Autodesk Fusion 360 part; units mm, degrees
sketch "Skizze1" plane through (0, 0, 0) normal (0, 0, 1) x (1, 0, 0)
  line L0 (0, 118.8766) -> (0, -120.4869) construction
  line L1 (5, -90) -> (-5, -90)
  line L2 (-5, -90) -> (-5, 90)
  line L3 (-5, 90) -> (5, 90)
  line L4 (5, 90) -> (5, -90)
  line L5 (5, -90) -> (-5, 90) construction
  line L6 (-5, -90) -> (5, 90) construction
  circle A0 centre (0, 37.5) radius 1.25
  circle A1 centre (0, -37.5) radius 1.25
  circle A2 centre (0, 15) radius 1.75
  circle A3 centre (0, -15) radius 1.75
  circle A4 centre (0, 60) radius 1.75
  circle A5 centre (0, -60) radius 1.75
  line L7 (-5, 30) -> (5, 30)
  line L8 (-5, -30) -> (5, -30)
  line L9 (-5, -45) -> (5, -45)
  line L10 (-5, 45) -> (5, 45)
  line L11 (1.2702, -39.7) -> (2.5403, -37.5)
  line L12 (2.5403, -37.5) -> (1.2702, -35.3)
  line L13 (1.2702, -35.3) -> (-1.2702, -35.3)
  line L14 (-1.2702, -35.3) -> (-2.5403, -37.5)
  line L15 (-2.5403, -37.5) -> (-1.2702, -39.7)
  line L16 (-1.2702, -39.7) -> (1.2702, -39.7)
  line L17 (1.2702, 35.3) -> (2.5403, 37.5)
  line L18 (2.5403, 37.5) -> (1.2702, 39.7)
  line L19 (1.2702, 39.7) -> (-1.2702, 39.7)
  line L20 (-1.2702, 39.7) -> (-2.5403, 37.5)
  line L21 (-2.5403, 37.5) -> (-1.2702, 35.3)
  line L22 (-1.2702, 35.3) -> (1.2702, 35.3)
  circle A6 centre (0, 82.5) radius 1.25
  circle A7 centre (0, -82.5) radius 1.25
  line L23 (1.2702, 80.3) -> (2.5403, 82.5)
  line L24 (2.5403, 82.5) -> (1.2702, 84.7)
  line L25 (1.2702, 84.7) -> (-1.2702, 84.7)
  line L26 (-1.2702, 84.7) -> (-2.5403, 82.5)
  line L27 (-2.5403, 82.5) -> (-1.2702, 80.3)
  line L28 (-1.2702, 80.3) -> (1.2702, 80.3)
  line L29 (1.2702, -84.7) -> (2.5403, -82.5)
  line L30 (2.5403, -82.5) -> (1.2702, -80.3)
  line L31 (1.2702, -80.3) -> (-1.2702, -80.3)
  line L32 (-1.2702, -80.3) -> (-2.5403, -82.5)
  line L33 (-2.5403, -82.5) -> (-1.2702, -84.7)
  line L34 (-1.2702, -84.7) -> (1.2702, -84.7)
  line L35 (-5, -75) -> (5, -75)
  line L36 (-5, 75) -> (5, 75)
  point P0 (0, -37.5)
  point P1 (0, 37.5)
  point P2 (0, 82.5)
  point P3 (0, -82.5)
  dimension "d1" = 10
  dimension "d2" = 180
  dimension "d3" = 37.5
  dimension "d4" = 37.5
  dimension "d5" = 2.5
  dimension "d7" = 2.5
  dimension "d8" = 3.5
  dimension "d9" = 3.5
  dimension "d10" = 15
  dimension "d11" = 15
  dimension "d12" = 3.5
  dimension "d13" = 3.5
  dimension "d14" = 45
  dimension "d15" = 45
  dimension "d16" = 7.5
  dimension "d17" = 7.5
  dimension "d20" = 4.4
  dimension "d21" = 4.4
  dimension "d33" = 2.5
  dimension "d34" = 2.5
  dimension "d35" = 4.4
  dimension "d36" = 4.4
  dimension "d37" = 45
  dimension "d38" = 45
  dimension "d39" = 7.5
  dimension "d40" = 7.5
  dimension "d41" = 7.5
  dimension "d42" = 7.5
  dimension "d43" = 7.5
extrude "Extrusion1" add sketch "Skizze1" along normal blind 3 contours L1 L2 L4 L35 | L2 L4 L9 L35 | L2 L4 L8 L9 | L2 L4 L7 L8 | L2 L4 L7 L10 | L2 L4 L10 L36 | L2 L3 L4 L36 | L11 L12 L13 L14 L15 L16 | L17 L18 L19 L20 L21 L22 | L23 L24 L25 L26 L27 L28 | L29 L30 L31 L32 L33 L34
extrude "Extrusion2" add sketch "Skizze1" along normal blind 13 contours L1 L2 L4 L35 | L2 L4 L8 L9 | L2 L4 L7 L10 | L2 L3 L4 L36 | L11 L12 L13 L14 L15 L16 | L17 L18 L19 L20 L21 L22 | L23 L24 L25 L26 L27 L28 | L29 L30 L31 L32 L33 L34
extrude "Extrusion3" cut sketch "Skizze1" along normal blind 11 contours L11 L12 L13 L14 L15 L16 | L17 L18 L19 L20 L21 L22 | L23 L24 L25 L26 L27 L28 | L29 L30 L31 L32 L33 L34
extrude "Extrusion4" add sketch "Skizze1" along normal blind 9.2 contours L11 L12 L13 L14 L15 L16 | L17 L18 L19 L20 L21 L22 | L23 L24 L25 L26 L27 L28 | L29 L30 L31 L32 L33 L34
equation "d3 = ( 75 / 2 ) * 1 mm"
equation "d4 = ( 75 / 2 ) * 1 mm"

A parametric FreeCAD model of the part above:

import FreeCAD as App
import Part
import Sketcher
Q = App.Units.Quantity

doc = App.newDocument("Part")
body = doc.addObject("PartDesign::Body", "Body")

# Sketch on XY plane
sketch1 = body.newObject("Sketcher::SketchObject", "Sketch")
sketch1.AttachmentSupport = (doc.getObject("XY_Plane"), [""])
sketch1.MapMode = "FlatFace"
sketch1.addGeometry(Part.LineSegment(App.Vector(-5, -90, 0), App.Vector(5, -90, 0)), False)
sketch1.addGeometry(Part.LineSegment(App.Vector(5, -90, 0), App.Vector(5, 90, 0)), False)
sketch1.addGeometry(Part.LineSegment(App.Vector(5, 90, 0), App.Vector(-5, 90, 0)), False)
sketch1.addGeometry(Part.LineSegment(App.Vector(-5, 90, 0), App.Vector(-5, -90, 0)), False)
sketch1.addGeometry(Part.Circle(App.Vector(0, -60, 0), App.Vector(0, 0, 1), 1.8), False)
sketch1.addGeometry(Part.Circle(App.Vector(0, -82.5, 0), App.Vector(0, 0, 1), 1.2), False)
sketch1.addGeometry(Part.Circle(App.Vector(0, -37.5, 0), App.Vector(0, 0, 1), 1.2), False)
sketch1.addGeometry(Part.Circle(App.Vector(0, 15, 0), App.Vector(0, 0, 1), 1.8), False)
sketch1.addGeometry(Part.Circle(App.Vector(0, -15, 0), App.Vector(0, 0, 1), 1.8), False)
sketch1.addGeometry(Part.Circle(App.Vector(0, 37.5, 0), App.Vector(0, 0, 1), 1.2), False)
sketch1.addGeometry(Part.Circle(App.Vector(0, 60, 0), App.Vector(0, 0, 1), 1.8), False)
sketch1.addGeometry(Part.Circle(App.Vector(0, 82.5, 0), App.Vector(0, 0, 1), 1.2), False)
sketch1.addConstraint(Sketcher.Constraint("Coincident", 0, 2, 1, 1))
sketch1.addConstraint(Sketcher.Constraint("Coincident", 1, 2, 2, 1))
sketch1.addConstraint(Sketcher.Constraint("Coincident", 2, 2, 3, 1))
sketch1.addConstraint(Sketcher.Constraint("Coincident", 3, 2, 0, 1))
sketch1.addConstraint(Sketcher.Constraint("Horizontal", 0))
sketch1.addConstraint(Sketcher.Constraint("Vertical", 1))
sketch1.addConstraint(Sketcher.Constraint("Horizontal", 2))
sketch1.addConstraint(Sketcher.Constraint("Vertical", 3))
sketch1.addConstraint(Sketcher.Constraint("Equal", 5, 6))
sketch1.addConstraint(Sketcher.Constraint("Equal", 4, 7))
sketch1.addConstraint(Sketcher.Constraint("Equal", 7, 8))
sketch1.addConstraint(Sketcher.Constraint("Equal", 6, 9))
sketch1.addConstraint(Sketcher.Constraint("Equal", 8, 10))
sketch1.addConstraint(Sketcher.Constraint("Equal", 9, 11))
sketch1.addConstraint(Sketcher.Constraint("Symmetric", 7, 3, 8, 3, -1, 1))
sketch1.addConstraint(Sketcher.Constraint("Symmetric", 6, 3, 9, 3, -1, 1))
sketch1.addConstraint(Sketcher.Constraint("Symmetric", 4, 3, 10, 3, -1, 1))
sketch1.addConstraint(Sketcher.Constraint("Symmetric", 5, 3, 11, 3, -1, 1))
sketch1.addConstraint(Sketcher.Constraint("Symmetric", 0, 2, 2, 2, -1, 1))
sketch1.addConstraint(Sketcher.Constraint("PointOnObject", 4, 3, -2))
sketch1.addConstraint(Sketcher.Constraint("PointOnObject", 5, 3, -2))
sketch1.addConstraint(Sketcher.Constraint("PointOnObject", 6, 3, -2))
sketch1.addConstraint(Sketcher.Constraint("PointOnObject", 7, 3, -2))
sketch1.addConstraint(Sketcher.Constraint("Diameter", 4, Q("3.5 mm")))
sketch1.addConstraint(Sketcher.Constraint("Diameter", 5, Q("2.5 mm")))
sketch1.addConstraint(Sketcher.Constraint("DistanceX", 0, 1, 0, 2, Q("10 mm")))
sketch1.addConstraint(Sketcher.Constraint("DistanceY", 1, 1, 1, 2, Q("180 mm")))
sketch1.addConstraint(Sketcher.Constraint("DistanceY", -1, 1, 7, 3, Q("15 mm")))
sketch1.addConstraint(Sketcher.Constraint("DistanceY", 5, 3, 6, 3, Q("45 mm")))
sketch1.addConstraint(Sketcher.Constraint("DistanceY", 4, 3, 8, 3, Q("45 mm")))
sketch1.addConstraint(Sketcher.Constraint("DistanceY", 6, 3, -1, 1, Q("37.5 mm")))
pad1 = body.newObject("PartDesign::Pad", "Pad")
pad1.Profile = sketch1
pad1.Length = 3

# Sketch on XY plane
sketch2 = body.newObject("Sketcher::SketchObject", "Sketch001")
sketch2.AttachmentSupport = (doc.getObject("XY_Plane"), [""])
sketch2.MapMode = "FlatFace"
sketch2.addGeometry(Part.LineSegment(App.Vector(-5, -90, 0), App.Vector(5, -90, 0)), False)
sketch2.addGeometry(Part.LineSegment(App.Vector(5, -90, 0), App.Vector(5, -75, 0)), False)
sketch2.addGeometry(Part.LineSegment(App.Vector(5, -75, 0), App.Vector(-5, -75, 0)), False)
sketch2.addGeometry(Part.LineSegment(App.Vector(-5, -75, 0), App.Vector(-5, -90, 0)), False)
sketch2.addGeometry(Part.Circle(App.Vector(0, -82.5, 0), App.Vector(0, 0, 1), 1.2), False)
sketch2.addGeometry(Part.LineSegment(App.Vector(-5, -45, 0), App.Vector(5, -45, 0)), False)
sketch2.addGeometry(Part.LineSegment(App.Vector(5, -45, 0), App.Vector(5, -30, 0)), False)
sketch2.addGeometry(Part.LineSegment(App.Vector(5, -30, 0), App.Vector(-5, -30, 0)), False)
sketch2.addGeometry(Part.LineSegment(App.Vector(-5, -30, 0), App.Vector(-5, -45, 0)), False)
sketch2.addGeometry(Part.Circle(App.Vector(0, -37.5, 0), App.Vector(0, 0, 1), 1.2), False)
sketch2.addGeometry(Part.LineSegment(App.Vector(-5, 30, 0), App.Vector(5, 30, 0)), False)
sketch2.addGeometry(Part.LineSegment(App.Vector(5, 30, 0), App.Vector(5, 45, 0)), False)
sketch2.addGeometry(Part.LineSegment(App.Vector(5, 45, 0), App.Vector(-5, 45, 0)), False)
sketch2.addGeometry(Part.LineSegment(App.Vector(-5, 45, 0), App.Vector(-5, 30, 0)), False)
sketch2.addGeometry(Part.Circle(App.Vector(0, 37.5, 0), App.Vector(0, 0, 1), 1.2), False)
sketch2.addGeometry(Part.LineSegment(App.Vector(-5, 75, 0), App.Vector(5, 75, 0)), False)
sketch2.addGeometry(Part.LineSegment(App.Vector(5, 75, 0), App.Vector(5, 90, 0)), False)
sketch2.addGeometry(Part.LineSegment(App.Vector(5, 90, 0), App.Vector(-5, 90, 0)), False)
sketch2.addGeometry(Part.LineSegment(App.Vector(-5, 90, 0), App.Vector(-5, 75, 0)), False)
sketch2.addGeometry(Part.Circle(App.Vector(0, 82.5, 0), App.Vector(0, 0, 1), 1.2), False)
sketch2.addConstraint(Sketcher.Constraint("Coincident", 0, 2, 1, 1))
sketch2.addConstraint(Sketcher.Constraint("Coincident", 1, 2, 2, 1))
sketch2.addConstraint(Sketcher.Constraint("Coincident", 2, 2, 3, 1))
sketch2.addConstraint(Sketcher.Constraint("Coincident", 3, 2, 0, 1))
sketch2.addConstraint(Sketcher.Constraint("Coincident", 5, 2, 6, 1))
sketch2.addConstraint(Sketcher.Constraint("Coincident", 6, 2, 7, 1))
sketch2.addConstraint(Sketcher.Constraint("Coincident", 7, 2, 8, 1))
sketch2.addConstraint(Sketcher.Constraint("Coincident", 8, 2, 5, 1))
sketch2.addConstraint(Sketcher.Constraint("Coincident", 10, 2, 11, 1))
sketch2.addConstraint(Sketcher.Constraint("Coincident", 11, 2, 12, 1))
sketch2.addConstraint(Sketcher.Constraint("Coincident", 12, 2, 13, 1))
sketch2.addConstraint(Sketcher.Constraint("Coincident", 13, 2, 10, 1))
sketch2.addConstraint(Sketcher.Constraint("Coincident", 15, 2, 16, 1))
sketch2.addConstraint(Sketcher.Constraint("Coincident", 16, 2, 17, 1))
sketch2.addConstraint(Sketcher.Constraint("Coincident", 17, 2, 18, 1))
sketch2.addConstraint(Sketcher.Constraint("Coincident", 18, 2, 15, 1))
sketch2.addConstraint(Sketcher.Constraint("Horizontal", 0))
sketch2.addConstraint(Sketcher.Constraint("Vertical", 1))
sketch2.addConstraint(Sketcher.Constraint("Horizontal", 2))
sketch2.addConstraint(Sketcher.Constraint("Vertical", 3))
sketch2.addConstraint(Sketcher.Constraint("Horizontal", 5))
sketch2.addConstraint(Sketcher.Constraint("Vertical", 6))
sketch2.addConstraint(Sketcher.Constraint("Horizontal", 7))
sketch2.addConstraint(Sketcher.Constraint("Vertical", 8))
sketch2.addConstraint(Sketcher.Constraint("Horizontal", 10))
sketch2.addConstraint(Sketcher.Constraint("Vertical", 11))
sketch2.addConstraint(Sketcher.Constraint("Horizontal", 12))
sketch2.addConstraint(Sketcher.Constraint("Vertical", 13))
sketch2.addConstraint(Sketcher.Constraint("Horizontal", 15))
sketch2.addConstraint(Sketcher.Constraint("Vertical", 16))
sketch2.addConstraint(Sketcher.Constraint("Horizontal", 17))
sketch2.addConstraint(Sketcher.Constraint("Vertical", 18))
sketch2.addConstraint(Sketcher.Constraint("Equal", 4, 9))
sketch2.addConstraint(Sketcher.Constraint("Equal", 9, 14))
sketch2.addConstraint(Sketcher.Constraint("Equal", 14, 19))
sketch2.addConstraint(Sketcher.Constraint("Symmetric", 9, 3, 14, 3, -1, 1))
sketch2.addConstraint(Sketcher.Constraint("Symmetric", 4, 3, 19, 3, -1, 1))
sketch2.addConstraint(Sketcher.Constraint("Symmetric", 7, 2, 10, 2, -1, 1))
sketch2.addConstraint(Sketcher.Constraint("Symmetric", 5, 2, 12, 2, -1, 1))
sketch2.addConstraint(Sketcher.Constraint("Symmetric", 2, 2, 15, 2, -1, 1))
sketch2.addConstraint(Sketcher.Constraint("Symmetric", 0, 2, 17, 2, -1, 1))
sketch2.addConstraint(Sketcher.Constraint("PointOnObject", 4, 3, -2))
sketch2.addConstraint(Sketcher.Constraint("PointOnObject", 9, 3, -2))
sketch2.addConstraint(Sketcher.Constraint("Vertical", 1, 2, 5, 2))
sketch2.addConstraint(Sketcher.Constraint("Vertical", 3, 2, 7, 2))
sketch2.addConstraint(Sketcher.Constraint("Vertical", 6, 2, 10, 2))
sketch2.addConstraint(Sketcher.Constraint("Equal", 3, 6))
sketch2.addConstraint(Sketcher.Constraint("Diameter", 4, Q("2.5 mm")))
sketch2.addConstraint(Sketcher.Constraint("DistanceX", 0, 1, 0, 2, Q("10 mm")))
sketch2.addConstraint(Sketcher.Constraint("DistanceY", 1, 1, 1, 2, Q("15 mm")))
sketch2.addConstraint(Sketcher.Constraint("DistanceY", 5, 2, -1, 1, Q("45 mm")))
sketch2.addConstraint(Sketcher.Constraint("DistanceY", 4, 3, 9, 3, Q("45 mm")))
sketch2.addConstraint(Sketcher.Constraint("DistanceY", 0, 2, 5, 2, Q("45 mm")))
sketch2.addConstraint(Sketcher.Constraint("DistanceY", 9, 3, -1, 1, Q("37.5 mm")))
pad2 = body.newObject("PartDesign::Pad", "Pad001")
pad2.Profile = sketch2
pad2.Length = 13

# Sketch on XY plane
sketch3 = body.newObject("Sketcher::SketchObject", "Sketch002")
sketch3.AttachmentSupport = (doc.getObject("XY_Plane"), [""])
sketch3.MapMode = "FlatFace"
sketch3.addGeometry(Part.LineSegment(App.Vector(-1.3, -39.7, 0), App.Vector(1.3, -39.7, 0)), False)
sketch3.addGeometry(Part.LineSegment(App.Vector(1.3, -39.7, 0), App.Vector(2.5, -37.5, 0)), False)
sketch3.addGeometry(Part.LineSegment(App.Vector(2.5, -37.5, 0), App.Vector(1.3, -35.3, 0)), False)
sketch3.addGeometry(Part.LineSegment(App.Vector(1.3, -35.3, 0), App.Vector(-1.3, -35.3, 0)), False)
sketch3.addGeometry(Part.LineSegment(App.Vector(-1.3, -35.3, 0), App.Vector(-2.5, -37.5, 0)), False)
sketch3.addGeometry(Part.LineSegment(App.Vector(-2.5, -37.5, 0), App.Vector(-1.3, -39.7, 0)), False)
sketch3.addGeometry(Part.Circle(App.Vector(0, -37.5, 0), App.Vector(0, 0, 1), 1.2), False)
sketch3.addGeometry(Part.LineSegment(App.Vector(-1.3, 35.3, 0), App.Vector(1.3, 35.3, 0)), False)
sketch3.addGeometry(Part.LineSegment(App.Vector(1.3, 35.3, 0), App.Vector(2.5, 37.5, 0)), False)
sketch3.addGeometry(Part.LineSegment(App.Vector(2.5, 37.5, 0), App.Vector(1.3, 39.7, 0)), False)
sketch3.addGeometry(Part.LineSegment(App.Vector(1.3, 39.7, 0), App.Vector(-1.3, 39.7, 0)), False)
sketch3.addGeometry(Part.LineSegment(App.Vector(-1.3, 39.7, 0), App.Vector(-2.5, 37.5, 0)), False)
sketch3.addGeometry(Part.LineSegment(App.Vector(-2.5, 37.5, 0), App.Vector(-1.3, 35.3, 0)), False)
sketch3.addGeometry(Part.Circle(App.Vector(0, 37.5, 0), App.Vector(0, 0, 1), 1.2), False)
sketch3.addGeometry(Part.LineSegment(App.Vector(-1.3, 80.3, 0), App.Vector(1.3, 80.3, 0)), False)
sketch3.addGeometry(Part.LineSegment(App.Vector(1.3, 80.3, 0), App.Vector(2.5, 82.5, 0)), False)
sketch3.addGeometry(Part.LineSegment(App.Vector(2.5, 82.5, 0), App.Vector(1.3, 84.7, 0)), False)
sketch3.addGeometry(Part.LineSegment(App.Vector(1.3, 84.7, 0), App.Vector(-1.3, 84.7, 0)), False)
sketch3.addGeometry(Part.LineSegment(App.Vector(-1.3, 84.7, 0), App.Vector(-2.5, 82.5, 0)), False)
sketch3.addGeometry(Part.LineSegment(App.Vector(-2.5, 82.5, 0), App.Vector(-1.3, 80.3, 0)), False)
sketch3.addGeometry(Part.Circle(App.Vector(0, 82.5, 0), App.Vector(0, 0, 1), 1.2), False)
sketch3.addGeometry(Part.LineSegment(App.Vector(-1.3, -84.7, 0), App.Vector(1.3, -84.7, 0)), False)
sketch3.addGeometry(Part.LineSegment(App.Vector(1.3, -84.7, 0), App.Vector(2.5, -82.5, 0)), False)
sketch3.addGeometry(Part.LineSegment(App.Vector(2.5, -82.5, 0), App.Vector(1.3, -80.3, 0)), False)
sketch3.addGeometry(Part.LineSegment(App.Vector(1.3, -80.3, 0), App.Vector(-1.3, -80.3, 0)), False)
sketch3.addGeometry(Part.LineSegment(App.Vector(-1.3, -80.3, 0), App.Vector(-2.5, -82.5, 0)), False)
sketch3.addGeometry(Part.LineSegment(App.Vector(-2.5, -82.5, 0), App.Vector(-1.3, -84.7, 0)), False)
sketch3.addGeometry(Part.Circle(App.Vector(0, -82.5, 0), App.Vector(0, 0, 1), 1.2), False)
sketch3.addConstraint(Sketcher.Constraint("Coincident", 0, 2, 1, 1))
sketch3.addConstraint(Sketcher.Constraint("Coincident", 1, 2, 2, 1))
sketch3.addConstraint(Sketcher.Constraint("Coincident", 2, 2, 3, 1))
sketch3.addConstraint(Sketcher.Constraint("Coincident", 3, 2, 4, 1))
sketch3.addConstraint(Sketcher.Constraint("Coincident", 4, 2, 5, 1))
sketch3.addConstraint(Sketcher.Constraint("Coincident", 5, 2, 0, 1))
sketch3.addConstraint(Sketcher.Constraint("Coincident", 7, 2, 8, 1))
sketch3.addConstraint(Sketcher.Constraint("Coincident", 8, 2, 9, 1))
sketch3.addConstraint(Sketcher.Constraint("Coincident", 9, 2, 10, 1))
sketch3.addConstraint(Sketcher.Constraint("Coincident", 10, 2, 11, 1))
sketch3.addConstraint(Sketcher.Constraint("Coincident", 11, 2, 12, 1))
sketch3.addConstraint(Sketcher.Constraint("Coincident", 12, 2, 7, 1))
sketch3.addConstraint(Sketcher.Constraint("Coincident", 14, 2, 15, 1))
sketch3.addConstraint(Sketcher.Constraint("Coincident", 15, 2, 16, 1))
sketch3.addConstraint(Sketcher.Constraint("Coincident", 16, 2, 17, 1))
sketch3.addConstraint(Sketcher.Constraint("Coincident", 17, 2, 18, 1))
sketch3.addConstraint(Sketcher.Constraint("Coincident", 18, 2, 19, 1))
sketch3.addConstraint(Sketcher.Constraint("Coincident", 19, 2, 14, 1))
sketch3.addConstraint(Sketcher.Constraint("Coincident", 21, 2, 22, 1))
sketch3.addConstraint(Sketcher.Constraint("Coincident", 22, 2, 23, 1))
sketch3.addConstraint(Sketcher.Constraint("Coincident", 23, 2, 24, 1))
sketch3.addConstraint(Sketcher.Constraint("Coincident", 24, 2, 25, 1))
sketch3.addConstraint(Sketcher.Constraint("Coincident", 25, 2, 26, 1))
sketch3.addConstraint(Sketcher.Constraint("Coincident", 26, 2, 21, 1))
sketch3.addConstraint(Sketcher.Constraint("Horizontal", 0))
sketch3.addConstraint(Sketcher.Constraint("Horizontal", 3))
sketch3.addConstraint(Sketcher.Constraint("Horizontal", 7))
sketch3.addConstraint(Sketcher.Constraint("Horizontal", 10))
sketch3.addConstraint(Sketcher.Constraint("Horizontal", 14))
sketch3.addConstraint(Sketcher.Constraint("Horizontal", 17))
sketch3.addConstraint(Sketcher.Constraint("Horizontal", 21))
sketch3.addConstraint(Sketcher.Constraint("Horizontal", 24))
sketch3.addConstraint(Sketcher.Constraint("Equal", 6, 13))
sketch3.addConstraint(Sketcher.Constraint("Equal", 13, 20))
sketch3.addConstraint(Sketcher.Constraint("Equal", 20, 27))
sketch3.addConstraint(Sketcher.Constraint("Symmetric", 6, 3, 13, 3, -1, 1))
sketch3.addConstraint(Sketcher.Constraint("Symmetric", 20, 3, 27, 3, -1, 1))
sketch3.addConstraint(Sketcher.Constraint("Symmetric", 3, 2, 7, 2, -1, 1))
sketch3.addConstraint(Sketcher.Constraint("Symmetric", 4, 2, 8, 2, -1, 1))
sketch3.addConstraint(Sketcher.Constraint("Symmetric", 5, 2, 9, 2, -1, 1))
sketch3.addConstraint(Sketcher.Constraint("Symmetric", 1, 2, 11, 2, -1, 1))
sketch3.addConstraint(Sketcher.Constraint("Symmetric", 17, 2, 21, 2, -1, 1))
sketch3.addConstraint(Sketcher.Constraint("Symmetric", 18, 2, 22, 2, -1, 1))
sketch3.addConstraint(Sketcher.Constraint("Symmetric", 19, 2, 23, 2, -1, 1))
sketch3.addConstraint(Sketcher.Constraint("Symmetric", 15, 2, 25, 2, -1, 1))
sketch3.addConstraint(Sketcher.Constraint("Symmetric", 1, 2, 4, 2, -2))
sketch3.addConstraint(Sketcher.Constraint("Symmetric", 15, 2, 18, 2, -2))
sketch3.addConstraint(Sketcher.Constraint("PointOnObject", 6, 3, -2))
sketch3.addConstraint(Sketcher.Constraint("PointOnObject", 20, 3, -2))
sketch3.addConstraint(Sketcher.Constraint("Parallel", 1, 4))
sketch3.addConstraint(Sketcher.Constraint("Parallel", 2, 5))
sketch3.addConstraint(Sketcher.Constraint("Parallel", 8, 11))
sketch3.addConstraint(Sketcher.Constraint("Parallel", 9, 12))
sketch3.addConstraint(Sketcher.Constraint("Parallel", 11, 15))
sketch3.addConstraint(Sketcher.Constraint("Parallel", 12, 16))
sketch3.addConstraint(Sketcher.Constraint("Parallel", 15, 18))
sketch3.addConstraint(Sketcher.Constraint("Parallel", 16, 19))
sketch3.addConstraint(Sketcher.Constraint("Parallel", 22, 25))
sketch3.addConstraint(Sketcher.Constraint("Parallel", 23, 26))
sketch3.addConstraint(Sketcher.Constraint("Horizontal", 6, 3, 1, 2))
sketch3.addConstraint(Sketcher.Constraint("Horizontal", 20, 3, 15, 2))
sketch3.addConstraint(Sketcher.Constraint("Vertical", 0, 2, 2, 2))
sketch3.addConstraint(Sketcher.Constraint("Vertical", 3, 2, 5, 2))
sketch3.addConstraint(Sketcher.Constraint("Vertical", 9, 2, 14, 2))
sketch3.addConstraint(Sketcher.Constraint("Vertical", 8, 2, 15, 2))
sketch3.addConstraint(Sketcher.Constraint("Vertical", 14, 2, 16, 2))
sketch3.addConstraint(Sketcher.Constraint("Diameter", 6, Q("2.5 mm")))
sketch3.addConstraint(Sketcher.Constraint("DistanceY", 13, 3, 20, 3, Q("45 mm")))
sketch3.addConstraint(Sketcher.Constraint("DistanceY", 6, 3, -1, 1, Q("37.5 mm")))
sketch3.addConstraint(Sketcher.Constraint("DistanceY", 0, 2, 2, 2, Q("4.4 mm")))
sketch3.addConstraint(Sketcher.Constraint("DistanceX", 0, 2, 1, 2, Q("1.27 mm")))
sketch3.addConstraint(Sketcher.Constraint("DistanceX", 0, 1, 0, 2, Q("2.5404 mm")))
pocket1 = body.newObject("PartDesign::Pocket", "Pocket")
pocket1.Profile = sketch3
pocket1.Length = 11
pocket1.Reversed = True

# Sketch on XY plane
sketch4 = body.newObject("Sketcher::SketchObject", "Sketch003")
sketch4.AttachmentSupport = (doc.getObject("XY_Plane"), [""])
sketch4.MapMode = "FlatFace"
sketch4.addGeometry(Part.LineSegment(App.Vector(-1.3, -39.7, 0), App.Vector(1.3, -39.7, 0)), False)
sketch4.addGeometry(Part.LineSegment(App.Vector(1.3, -39.7, 0), App.Vector(2.5, -37.5, 0)), False)
sketch4.addGeometry(Part.LineSegment(App.Vector(2.5, -37.5, 0), App.Vector(1.3, -35.3, 0)), False)
sketch4.addGeometry(Part.LineSegment(App.Vector(1.3, -35.3, 0), App.Vector(-1.3, -35.3, 0)), False)
sketch4.addGeometry(Part.LineSegment(App.Vector(-1.3, -35.3, 0), App.Vector(-2.5, -37.5, 0)), False)
sketch4.addGeometry(Part.LineSegment(App.Vector(-2.5, -37.5, 0), App.Vector(-1.3, -39.7, 0)), False)
sketch4.addGeometry(Part.Circle(App.Vector(0, -37.5, 0), App.Vector(0, 0, 1), 1.2), False)
sketch4.addGeometry(Part.LineSegment(App.Vector(-1.3, 35.3, 0), App.Vector(1.3, 35.3, 0)), False)
sketch4.addGeometry(Part.LineSegment(App.Vector(1.3, 35.3, 0), App.Vector(2.5, 37.5, 0)), False)
sketch4.addGeometry(Part.LineSegment(App.Vector(2.5, 37.5, 0), App.Vector(1.3, 39.7, 0)), False)
sketch4.addGeometry(Part.LineSegment(App.Vector(1.3, 39.7, 0), App.Vector(-1.3, 39.7, 0)), False)
sketch4.addGeometry(Part.LineSegment(App.Vector(-1.3, 39.7, 0), App.Vector(-2.5, 37.5, 0)), False)
sketch4.addGeometry(Part.LineSegment(App.Vector(-2.5, 37.5, 0), App.Vector(-1.3, 35.3, 0)), False)
sketch4.addGeometry(Part.Circle(App.Vector(0, 37.5, 0), App.Vector(0, 0, 1), 1.2), False)
sketch4.addGeometry(Part.LineSegment(App.Vector(-1.3, 80.3, 0), App.Vector(1.3, 80.3, 0)), False)
sketch4.addGeometry(Part.LineSegment(App.Vector(1.3, 80.3, 0), App.Vector(2.5, 82.5, 0)), False)
sketch4.addGeometry(Part.LineSegment(App.Vector(2.5, 82.5, 0), App.Vector(1.3, 84.7, 0)), False)
sketch4.addGeometry(Part.LineSegment(App.Vector(1.3, 84.7, 0), App.Vector(-1.3, 84.7, 0)), False)
sketch4.addGeometry(Part.LineSegment(App.Vector(-1.3, 84.7, 0), App.Vector(-2.5, 82.5, 0)), False)
sketch4.addGeometry(Part.LineSegment(App.Vector(-2.5, 82.5, 0), App.Vector(-1.3, 80.3, 0)), False)
sketch4.addGeometry(Part.Circle(App.Vector(0, 82.5, 0), App.Vector(0, 0, 1), 1.2), False)
sketch4.addGeometry(Part.LineSegment(App.Vector(-1.3, -84.7, 0), App.Vector(1.3, -84.7, 0)), False)
sketch4.addGeometry(Part.LineSegment(App.Vector(1.3, -84.7, 0), App.Vector(2.5, -82.5, 0)), False)
sketch4.addGeometry(Part.LineSegment(App.Vector(2.5, -82.5, 0), App.Vector(1.3, -80.3, 0)), False)
sketch4.addGeometry(Part.LineSegment(App.Vector(1.3, -80.3, 0), App.Vector(-1.3, -80.3, 0)), False)
sketch4.addGeometry(Part.LineSegment(App.Vector(-1.3, -80.3, 0), App.Vector(-2.5, -82.5, 0)), False)
sketch4.addGeometry(Part.LineSegment(App.Vector(-2.5, -82.5, 0), App.Vector(-1.3, -84.7, 0)), False)
sketch4.addGeometry(Part.Circle(App.Vector(0, -82.5, 0), App.Vector(0, 0, 1), 1.2), False)
sketch4.addConstraint(Sketcher.Constraint("Coincident", 0, 2, 1, 1))
sketch4.addConstraint(Sketcher.Constraint("Coincident", 1, 2, 2, 1))
sketch4.addConstraint(Sketcher.Constraint("Coincident", 2, 2, 3, 1))
sketch4.addConstraint(Sketcher.Constraint("Coincident", 3, 2, 4, 1))
sketch4.addConstraint(Sketcher.Constraint("Coincident", 4, 2, 5, 1))
sketch4.addConstraint(Sketcher.Constraint("Coincident", 5, 2, 0, 1))
sketch4.addConstraint(Sketcher.Constraint("Coincident", 7, 2, 8, 1))
sketch4.addConstraint(Sketcher.Constraint("Coincident", 8, 2, 9, 1))
sketch4.addConstraint(Sketcher.Constraint("Coincident", 9, 2, 10, 1))
sketch4.addConstraint(Sketcher.Constraint("Coincident", 10, 2, 11, 1))
sketch4.addConstraint(Sketcher.Constraint("Coincident", 11, 2, 12, 1))
sketch4.addConstraint(Sketcher.Constraint("Coincident", 12, 2, 7, 1))
sketch4.addConstraint(Sketcher.Constraint("Coincident", 14, 2, 15, 1))
sketch4.addConstraint(Sketcher.Constraint("Coincident", 15, 2, 16, 1))
sketch4.addConstraint(Sketcher.Constraint("Coincident", 16, 2, 17, 1))
sketch4.addConstraint(Sketcher.Constraint("Coincident", 17, 2, 18, 1))
sketch4.addConstraint(Sketcher.Constraint("Coincident", 18, 2, 19, 1))
sketch4.addConstraint(Sketcher.Constraint("Coincident", 19, 2, 14, 1))
sketch4.addConstraint(Sketcher.Constraint("Coincident", 21, 2, 22, 1))
sketch4.addConstraint(Sketcher.Constraint("Coincident", 22, 2, 23, 1))
sketch4.addConstraint(Sketcher.Constraint("Coincident", 23, 2, 24, 1))
sketch4.addConstraint(Sketcher.Constraint("Coincident", 24, 2, 25, 1))
sketch4.addConstraint(Sketcher.Constraint("Coincident", 25, 2, 26, 1))
sketch4.addConstraint(Sketcher.Constraint("Coincident", 26, 2, 21, 1))
sketch4.addConstraint(Sketcher.Constraint("Horizontal", 0))
sketch4.addConstraint(Sketcher.Constraint("Horizontal", 3))
sketch4.addConstraint(Sketcher.Constraint("Horizontal", 7))
sketch4.addConstraint(Sketcher.Constraint("Horizontal", 10))
sketch4.addConstraint(Sketcher.Constraint("Horizontal", 14))
sketch4.addConstraint(Sketcher.Constraint("Horizontal", 17))
sketch4.addConstraint(Sketcher.Constraint("Horizontal", 21))
sketch4.addConstraint(Sketcher.Constraint("Horizontal", 24))
sketch4.addConstraint(Sketcher.Constraint("Equal", 6, 13))
sketch4.addConstraint(Sketcher.Constraint("Equal", 13, 20))
sketch4.addConstraint(Sketcher.Constraint("Equal", 20, 27))
sketch4.addConstraint(Sketcher.Constraint("Symmetric", 6, 3, 13, 3, -1, 1))
sketch4.addConstraint(Sketcher.Constraint("Symmetric", 20, 3, 27, 3, -1, 1))
sketch4.addConstraint(Sketcher.Constraint("Symmetric", 3, 2, 7, 2, -1, 1))
sketch4.addConstraint(Sketcher.Constraint("Symmetric", 4, 2, 8, 2, -1, 1))
sketch4.addConstraint(Sketcher.Constraint("Symmetric", 5, 2, 9, 2, -1, 1))
sketch4.addConstraint(Sketcher.Constraint("Symmetric", 1, 2, 11, 2, -1, 1))
sketch4.addConstraint(Sketcher.Constraint("Symmetric", 17, 2, 21, 2, -1, 1))
sketch4.addConstraint(Sketcher.Constraint("Symmetric", 18, 2, 22, 2, -1, 1))
sketch4.addConstraint(Sketcher.Constraint("Symmetric", 19, 2, 23, 2, -1, 1))
sketch4.addConstraint(Sketcher.Constraint("Symmetric", 15, 2, 25, 2, -1, 1))
sketch4.addConstraint(Sketcher.Constraint("Symmetric", 1, 2, 4, 2, -2))
sketch4.addConstraint(Sketcher.Constraint("Symmetric", 15, 2, 18, 2, -2))
sketch4.addConstraint(Sketcher.Constraint("PointOnObject", 6, 3, -2))
sketch4.addConstraint(Sketcher.Constraint("PointOnObject", 20, 3, -2))
sketch4.addConstraint(Sketcher.Constraint("Parallel", 1, 4))
sketch4.addConstraint(Sketcher.Constraint("Parallel", 2, 5))
sketch4.addConstraint(Sketcher.Constraint("Parallel", 8, 11))
sketch4.addConstraint(Sketcher.Constraint("Parallel", 9, 12))
sketch4.addConstraint(Sketcher.Constraint("Parallel", 11, 15))
sketch4.addConstraint(Sketcher.Constraint("Parallel", 12, 16))
sketch4.addConstraint(Sketcher.Constraint("Parallel", 15, 18))
sketch4.addConstraint(Sketcher.Constraint("Parallel", 16, 19))
sketch4.addConstraint(Sketcher.Constraint("Parallel", 22, 25))
sketch4.addConstraint(Sketcher.Constraint("Parallel", 23, 26))
sketch4.addConstraint(Sketcher.Constraint("Horizontal", 6, 3, 1, 2))
sketch4.addConstraint(Sketcher.Constraint("Horizontal", 20, 3, 15, 2))
sketch4.addConstraint(Sketcher.Constraint("Vertical", 0, 2, 2, 2))
sketch4.addConstraint(Sketcher.Constraint("Vertical", 3, 2, 5, 2))
sketch4.addConstraint(Sketcher.Constraint("Vertical", 9, 2, 14, 2))
sketch4.addConstraint(Sketcher.Constraint("Vertical", 8, 2, 15, 2))
sketch4.addConstraint(Sketcher.Constraint("Vertical", 14, 2, 16, 2))
sketch4.addConstraint(Sketcher.Constraint("Diameter", 6, Q("2.5 mm")))
sketch4.addConstraint(Sketcher.Constraint("DistanceY", 13, 3, 20, 3, Q("45 mm")))
sketch4.addConstraint(Sketcher.Constraint("DistanceY", 6, 3, -1, 1, Q("37.5 mm")))
sketch4.addConstraint(Sketcher.Constraint("DistanceY", 0, 2, 2, 2, Q("4.4 mm")))
sketch4.addConstraint(Sketcher.Constraint("DistanceX", 0, 2, 1, 2, Q("1.27 mm")))
sketch4.addConstraint(Sketcher.Constraint("DistanceX", 0, 1, 0, 2, Q("2.5404 mm")))
pad3 = body.newObject("PartDesign::Pad", "Pad002")
pad3.Profile = sketch4
pad3.Length = 9.2

doc.recompute()
